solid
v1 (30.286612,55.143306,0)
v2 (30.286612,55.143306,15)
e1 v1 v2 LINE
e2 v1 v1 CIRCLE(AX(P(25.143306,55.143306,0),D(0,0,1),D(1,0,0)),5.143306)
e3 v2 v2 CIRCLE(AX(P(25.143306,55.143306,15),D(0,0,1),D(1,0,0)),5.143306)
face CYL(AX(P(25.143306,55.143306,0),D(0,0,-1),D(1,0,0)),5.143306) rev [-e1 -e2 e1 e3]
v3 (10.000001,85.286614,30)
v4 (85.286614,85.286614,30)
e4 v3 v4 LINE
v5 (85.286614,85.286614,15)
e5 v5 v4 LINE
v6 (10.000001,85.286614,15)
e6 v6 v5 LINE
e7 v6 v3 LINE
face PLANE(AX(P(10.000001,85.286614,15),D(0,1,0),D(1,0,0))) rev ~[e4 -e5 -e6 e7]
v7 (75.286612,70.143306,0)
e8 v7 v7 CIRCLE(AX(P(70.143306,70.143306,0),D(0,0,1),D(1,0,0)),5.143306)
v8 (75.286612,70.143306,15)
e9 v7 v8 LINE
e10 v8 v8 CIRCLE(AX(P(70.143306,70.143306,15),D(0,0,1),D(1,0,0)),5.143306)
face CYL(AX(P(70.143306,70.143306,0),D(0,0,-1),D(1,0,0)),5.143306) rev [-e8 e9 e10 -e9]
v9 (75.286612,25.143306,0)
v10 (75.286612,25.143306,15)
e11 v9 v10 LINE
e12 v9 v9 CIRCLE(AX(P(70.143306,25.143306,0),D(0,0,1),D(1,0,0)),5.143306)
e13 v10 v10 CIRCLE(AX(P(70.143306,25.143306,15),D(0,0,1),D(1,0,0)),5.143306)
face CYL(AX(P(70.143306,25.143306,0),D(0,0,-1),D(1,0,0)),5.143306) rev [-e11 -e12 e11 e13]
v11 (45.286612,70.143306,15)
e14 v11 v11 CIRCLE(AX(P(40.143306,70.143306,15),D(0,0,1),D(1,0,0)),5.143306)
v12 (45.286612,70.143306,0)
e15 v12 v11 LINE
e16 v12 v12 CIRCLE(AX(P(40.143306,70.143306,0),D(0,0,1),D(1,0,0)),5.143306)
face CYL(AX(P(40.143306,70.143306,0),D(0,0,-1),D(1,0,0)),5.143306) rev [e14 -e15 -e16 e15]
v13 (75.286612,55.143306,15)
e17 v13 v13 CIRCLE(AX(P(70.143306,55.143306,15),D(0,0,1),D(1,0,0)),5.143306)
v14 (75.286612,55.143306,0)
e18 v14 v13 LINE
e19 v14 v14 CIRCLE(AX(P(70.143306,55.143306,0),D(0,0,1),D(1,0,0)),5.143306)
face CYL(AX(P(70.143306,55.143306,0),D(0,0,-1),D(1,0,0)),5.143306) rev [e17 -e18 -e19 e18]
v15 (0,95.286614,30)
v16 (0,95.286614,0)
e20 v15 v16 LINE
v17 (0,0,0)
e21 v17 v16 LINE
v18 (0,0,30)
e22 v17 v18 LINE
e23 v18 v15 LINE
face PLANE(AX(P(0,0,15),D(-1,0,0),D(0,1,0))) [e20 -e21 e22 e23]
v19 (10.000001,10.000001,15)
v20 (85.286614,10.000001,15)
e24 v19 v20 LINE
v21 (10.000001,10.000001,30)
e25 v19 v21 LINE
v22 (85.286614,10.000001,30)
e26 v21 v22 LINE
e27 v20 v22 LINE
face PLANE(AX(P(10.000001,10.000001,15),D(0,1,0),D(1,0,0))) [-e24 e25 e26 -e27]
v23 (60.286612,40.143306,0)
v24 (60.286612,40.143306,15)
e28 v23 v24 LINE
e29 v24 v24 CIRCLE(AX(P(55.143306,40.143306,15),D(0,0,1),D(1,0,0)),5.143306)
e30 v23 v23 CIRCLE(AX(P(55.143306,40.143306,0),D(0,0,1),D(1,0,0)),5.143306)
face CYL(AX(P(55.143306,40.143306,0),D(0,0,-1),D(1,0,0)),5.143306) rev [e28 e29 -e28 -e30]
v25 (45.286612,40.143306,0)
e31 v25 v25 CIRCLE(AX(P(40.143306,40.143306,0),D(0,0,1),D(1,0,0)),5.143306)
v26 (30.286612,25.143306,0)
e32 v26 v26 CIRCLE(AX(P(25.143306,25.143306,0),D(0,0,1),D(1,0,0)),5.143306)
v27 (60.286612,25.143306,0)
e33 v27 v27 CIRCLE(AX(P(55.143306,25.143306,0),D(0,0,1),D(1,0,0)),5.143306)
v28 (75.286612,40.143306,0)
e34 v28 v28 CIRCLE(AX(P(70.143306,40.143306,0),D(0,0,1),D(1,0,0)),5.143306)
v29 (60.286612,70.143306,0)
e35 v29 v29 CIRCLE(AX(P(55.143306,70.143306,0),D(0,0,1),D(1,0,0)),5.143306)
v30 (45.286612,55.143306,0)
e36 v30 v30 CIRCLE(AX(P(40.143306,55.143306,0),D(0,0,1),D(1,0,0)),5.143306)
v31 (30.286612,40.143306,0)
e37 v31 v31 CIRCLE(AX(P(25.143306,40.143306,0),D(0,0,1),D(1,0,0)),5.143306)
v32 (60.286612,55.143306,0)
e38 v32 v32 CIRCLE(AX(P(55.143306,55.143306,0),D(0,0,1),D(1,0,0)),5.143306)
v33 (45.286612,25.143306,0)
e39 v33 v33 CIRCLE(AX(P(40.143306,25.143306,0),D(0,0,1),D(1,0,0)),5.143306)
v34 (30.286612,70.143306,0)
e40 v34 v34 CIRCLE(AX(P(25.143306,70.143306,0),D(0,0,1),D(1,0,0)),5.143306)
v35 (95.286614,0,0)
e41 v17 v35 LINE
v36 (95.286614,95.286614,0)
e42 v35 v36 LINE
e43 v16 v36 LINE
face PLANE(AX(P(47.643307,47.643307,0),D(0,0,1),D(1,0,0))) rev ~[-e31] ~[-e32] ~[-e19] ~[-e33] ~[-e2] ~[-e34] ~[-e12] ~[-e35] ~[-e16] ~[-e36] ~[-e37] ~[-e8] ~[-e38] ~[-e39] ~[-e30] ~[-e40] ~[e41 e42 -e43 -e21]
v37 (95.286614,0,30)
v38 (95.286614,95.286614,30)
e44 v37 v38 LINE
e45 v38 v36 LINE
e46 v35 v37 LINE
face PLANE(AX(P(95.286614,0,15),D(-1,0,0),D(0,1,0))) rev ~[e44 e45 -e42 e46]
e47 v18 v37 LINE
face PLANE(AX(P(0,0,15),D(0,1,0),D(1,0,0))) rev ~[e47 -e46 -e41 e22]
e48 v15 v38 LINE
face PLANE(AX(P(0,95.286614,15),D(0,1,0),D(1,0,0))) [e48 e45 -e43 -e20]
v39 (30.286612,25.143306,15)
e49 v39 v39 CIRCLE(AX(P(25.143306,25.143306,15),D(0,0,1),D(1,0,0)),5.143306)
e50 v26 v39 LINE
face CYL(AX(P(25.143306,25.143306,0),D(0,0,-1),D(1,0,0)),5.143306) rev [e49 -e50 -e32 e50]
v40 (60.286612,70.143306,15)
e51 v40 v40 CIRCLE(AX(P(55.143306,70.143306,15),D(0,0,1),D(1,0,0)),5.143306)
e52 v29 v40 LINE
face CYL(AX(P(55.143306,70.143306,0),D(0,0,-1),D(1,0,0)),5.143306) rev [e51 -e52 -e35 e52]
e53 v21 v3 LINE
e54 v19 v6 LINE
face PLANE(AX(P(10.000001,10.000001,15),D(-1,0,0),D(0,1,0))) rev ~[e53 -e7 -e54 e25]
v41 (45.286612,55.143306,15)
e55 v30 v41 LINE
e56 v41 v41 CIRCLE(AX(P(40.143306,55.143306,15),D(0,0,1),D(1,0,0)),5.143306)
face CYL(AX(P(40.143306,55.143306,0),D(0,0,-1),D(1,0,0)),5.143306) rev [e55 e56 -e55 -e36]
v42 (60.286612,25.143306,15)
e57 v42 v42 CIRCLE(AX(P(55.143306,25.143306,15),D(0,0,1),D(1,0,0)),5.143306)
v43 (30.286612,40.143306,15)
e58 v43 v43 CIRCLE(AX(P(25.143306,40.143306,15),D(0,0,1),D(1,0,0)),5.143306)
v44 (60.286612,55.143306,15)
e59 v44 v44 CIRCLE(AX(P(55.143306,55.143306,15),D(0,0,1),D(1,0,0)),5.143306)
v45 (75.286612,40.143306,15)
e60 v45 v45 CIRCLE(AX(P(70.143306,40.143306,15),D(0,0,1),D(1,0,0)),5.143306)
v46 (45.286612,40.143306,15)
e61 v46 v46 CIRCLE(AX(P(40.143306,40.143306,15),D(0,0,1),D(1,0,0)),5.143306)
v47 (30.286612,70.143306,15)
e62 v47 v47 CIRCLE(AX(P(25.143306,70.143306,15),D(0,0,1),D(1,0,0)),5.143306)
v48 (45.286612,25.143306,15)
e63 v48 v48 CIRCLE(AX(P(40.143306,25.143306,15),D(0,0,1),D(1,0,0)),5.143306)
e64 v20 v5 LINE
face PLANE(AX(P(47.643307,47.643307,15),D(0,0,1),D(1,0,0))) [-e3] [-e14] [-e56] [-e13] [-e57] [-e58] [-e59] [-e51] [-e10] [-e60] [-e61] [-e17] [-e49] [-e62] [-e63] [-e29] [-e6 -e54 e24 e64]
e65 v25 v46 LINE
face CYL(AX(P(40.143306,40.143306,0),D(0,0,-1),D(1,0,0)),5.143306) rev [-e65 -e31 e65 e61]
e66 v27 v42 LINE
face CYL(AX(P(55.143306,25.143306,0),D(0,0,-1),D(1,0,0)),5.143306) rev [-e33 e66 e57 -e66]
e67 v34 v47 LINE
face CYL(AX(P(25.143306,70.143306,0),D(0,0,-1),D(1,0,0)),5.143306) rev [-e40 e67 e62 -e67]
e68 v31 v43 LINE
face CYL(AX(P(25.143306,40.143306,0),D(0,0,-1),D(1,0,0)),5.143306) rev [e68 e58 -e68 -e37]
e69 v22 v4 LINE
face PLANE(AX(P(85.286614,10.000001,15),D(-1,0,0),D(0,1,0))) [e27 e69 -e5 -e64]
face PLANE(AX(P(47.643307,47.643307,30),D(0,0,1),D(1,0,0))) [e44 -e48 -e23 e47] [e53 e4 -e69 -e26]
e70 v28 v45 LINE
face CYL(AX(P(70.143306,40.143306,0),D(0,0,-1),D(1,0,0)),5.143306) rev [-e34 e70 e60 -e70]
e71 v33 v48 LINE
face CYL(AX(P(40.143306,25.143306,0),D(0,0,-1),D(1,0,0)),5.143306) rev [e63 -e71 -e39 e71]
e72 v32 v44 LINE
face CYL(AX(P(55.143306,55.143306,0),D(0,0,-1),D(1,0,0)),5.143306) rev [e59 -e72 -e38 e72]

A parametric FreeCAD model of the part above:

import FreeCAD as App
import Part
import Sketcher

V = App.Vector


def add_polygon(sketch, points):
    """Adds a closed chain of lines whose ends are joined by coincident constraints."""
    first, n = sketch.GeometryCount, len(points)
    for a, b in zip(points, points[1:] + points[:1]):
        sketch.addGeometry(Part.LineSegment(App.Vector(*a, 0), App.Vector(*b, 0)), False)
    for i in range(n):
        sketch.addConstraint(Sketcher.Constraint("Coincident", first + i, 2, first + (i + 1) % n, 1))

doc = App.newDocument("Part")
params = doc.addObject("Spreadsheet::Sheet", "Params")
for row, (alias, value) in enumerate([
    ("pad1_length", "15 mm"),
    ("pad2_length", "15 mm"),
], start=1):
    params.set(f"A{row}", alias)
    params.set(f"B{row}", "=" + value)
    params.setAlias(f"B{row}", alias)

body = doc.addObject("PartDesign::Body", "Body")

sketch1 = doc.addObject("Sketcher::SketchObject", "Sketch")
body.addObject(sketch1)
sketch1.AttachmentSupport = (doc.XY_Plane, [""])
sketch1.MapMode = "FlatFace"
add_polygon(sketch1, [(0, 95), (0, 0), (95, 0), (95, 95)])
sketch1.addGeometry(Part.Circle(V(25, 25, 0), V(0, 0, 1), 5), False)
sketch1.addGeometry(Part.Circle(V(40, 25, 0), V(0, 0, 1), 5), False)
sketch1.addGeometry(Part.Circle(V(25, 40, 0), V(0, 0, 1), 5), False)
sketch1.addGeometry(Part.Circle(V(40, 40, 0), V(0, 0, 1), 5), False)
sketch1.addGeometry(Part.Circle(V(55, 25, 0), V(0, 0, 1), 5), False)
sketch1.addGeometry(Part.Circle(V(70, 25, 0), V(0, 0, 1), 5), False)
sketch1.addGeometry(Part.Circle(V(55, 40, 0), V(0, 0, 1), 5), False)
sketch1.addGeometry(Part.Circle(V(70, 40, 0), V(0, 0, 1), 5), False)
sketch1.addGeometry(Part.Circle(V(25, 55, 0), V(0, 0, 1), 5), False)
sketch1.addGeometry(Part.Circle(V(40, 55, 0), V(0, 0, 1), 5), False)
sketch1.addGeometry(Part.Circle(V(25, 70, 0), V(0, 0, 1), 5), False)
sketch1.addGeometry(Part.Circle(V(40, 70, 0), V(0, 0, 1), 5), False)
sketch1.addGeometry(Part.Circle(V(55, 55, 0), V(0, 0, 1), 5), False)
sketch1.addGeometry(Part.Circle(V(70, 55, 0), V(0, 0, 1), 5), False)
sketch1.addGeometry(Part.Circle(V(55, 70, 0), V(0, 0, 1), 5), False)
sketch1.addGeometry(Part.Circle(V(70, 70, 0), V(0, 0, 1), 5), False)
sketch1.addConstraint(Sketcher.Constraint("Vertical", 0))
sketch1.addConstraint(Sketcher.Constraint("Horizontal", 1))
sketch1.addConstraint(Sketcher.Constraint("Vertical", 2))
sketch1.addConstraint(Sketcher.Constraint("Horizontal", 3))
sketch1.addConstraint(Sketcher.Constraint("Coincident", 0, 2, -1, 1))
sketch1.addConstraint(Sketcher.Constraint("Equal", 4, 5))
sketch1.addConstraint(Sketcher.Constraint("Equal", 5, 6))
sketch1.addConstraint(Sketcher.Constraint("Equal", 6, 7))
sketch1.addConstraint(Sketcher.Constraint("Equal", 7, 8))
sketch1.addConstraint(Sketcher.Constraint("Equal", 8, 9))
sketch1.addConstraint(Sketcher.Constraint("Equal", 9, 10))
sketch1.addConstraint(Sketcher.Constraint("Equal", 10, 11))
sketch1.addConstraint(Sketcher.Constraint("Equal", 11, 12))
sketch1.addConstraint(Sketcher.Constraint("Equal", 12, 13))
sketch1.addConstraint(Sketcher.Constraint("Equal", 13, 14))
sketch1.addConstraint(Sketcher.Constraint("Equal", 14, 15))
sketch1.addConstraint(Sketcher.Constraint("Equal", 15, 16))
sketch1.addConstraint(Sketcher.Constraint("Equal", 16, 17))
sketch1.addConstraint(Sketcher.Constraint("Equal", 17, 18))
sketch1.addConstraint(Sketcher.Constraint("Equal", 18, 19))
sketch1.addConstraint(Sketcher.Constraint("Horizontal", 4, 3, 5, 3))
sketch1.addConstraint(Sketcher.Constraint("Horizontal", 6, 3, 7, 3))
sketch1.addConstraint(Sketcher.Constraint("Horizontal", 5, 3, 8, 3))
sketch1.addConstraint(Sketcher.Constraint("Horizontal", 8, 3, 9, 3))
sketch1.addConstraint(Sketcher.Constraint("Horizontal", 7, 3, 10, 3))
sketch1.addConstraint(Sketcher.Constraint("Horizontal", 10, 3, 11, 3))
sketch1.addConstraint(Sketcher.Constraint("Horizontal", 12, 3, 13, 3))
sketch1.addConstraint(Sketcher.Constraint("Horizontal", 14, 3, 15, 3))
sketch1.addConstraint(Sketcher.Constraint("Horizontal", 13, 3, 16, 3))
sketch1.addConstraint(Sketcher.Constraint("Horizontal", 16, 3, 17, 3))
sketch1.addConstraint(Sketcher.Constraint("Horizontal", 15, 3, 18, 3))
sketch1.addConstraint(Sketcher.Constraint("Horizontal", 18, 3, 19, 3))
sketch1.addConstraint(Sketcher.Constraint("Vertical", 4, 3, 6, 3))
sketch1.addConstraint(Sketcher.Constraint("Vertical", 5, 3, 7, 3))
sketch1.addConstraint(Sketcher.Constraint("Vertical", 8, 3, 10, 3))
sketch1.addConstraint(Sketcher.Constraint("Vertical", 9, 3, 11, 3))
sketch1.addConstraint(Sketcher.Constraint("Vertical", 6, 3, 12, 3))
sketch1.addConstraint(Sketcher.Constraint("Vertical", 7, 3, 13, 3))
sketch1.addConstraint(Sketcher.Constraint("Vertical", 12, 3, 14, 3))
sketch1.addConstraint(Sketcher.Constraint("Vertical", 13, 3, 15, 3))
sketch1.addConstraint(Sketcher.Constraint("Vertical", 10, 3, 16, 3))
sketch1.addConstraint(Sketcher.Constraint("Vertical", 11, 3, 17, 3))
sketch1.addConstraint(Sketcher.Constraint("Vertical", 16, 3, 18, 3))
sketch1.addConstraint(Sketcher.Constraint("Vertical", 17, 3, 19, 3))
sketch1.addConstraint(Sketcher.Constraint("Equal", 3, 0))
sketch1.addConstraint(Sketcher.Constraint("DistanceX", 4, 3, 5, 3, 15.0))
sketch1.addConstraint(Sketcher.Constraint("DistanceY", 4, 3, 6, 3, 15.0))
sketch1.addConstraint(Sketcher.Constraint("DistanceX", 5, 3, 8, 3, 15.0))
sketch1.addConstraint(Sketcher.Constraint("DistanceX", 8, 3, 9, 3, 15.0))
sketch1.addConstraint(Sketcher.Constraint("DistanceY", 6, 3, 12, 3, 15.0))
sketch1.addConstraint(Sketcher.Constraint("DistanceY", 12, 3, 14, 3, 15.0))
sketch1.addConstraint(Sketcher.Constraint("Diameter", 4, 10.286612))
sketch1.addConstraint(Sketcher.Constraint("DistanceX", 1, 1, 1, 2, 95.286613))
sketch1.addConstraint(Sketcher.Constraint("DistanceX", -1, 1, 4, 3, 25.143306))
sketch1.addConstraint(Sketcher.Constraint("DistanceY", -1, 1, 4, 3, 25.143306))
pad1 = doc.addObject("PartDesign::Pad", "Pad")
body.addObject(pad1)
pad1.Profile = sketch1
pad1.setExpression("Length", "Params.pad1_length")

sketch2 = doc.addObject("Sketcher::SketchObject", "Sketch001")
body.addObject(sketch2)
sketch2.AttachmentSupport = (doc.XY_Plane, [""])
sketch2.MapMode = "FlatFace"
sketch2.AttachmentOffset = App.Placement(V(0, 0, 15), App.Rotation())
add_polygon(sketch2, [(0, 95), (0, 0), (95, 0), (95, 95)])
add_polygon(sketch2, [(85, 10), (10, 10), (10, 85), (85, 85)])
sketch2.addConstraint(Sketcher.Constraint("Vertical", 0))
sketch2.addConstraint(Sketcher.Constraint("Horizontal", 1))
sketch2.addConstraint(Sketcher.Constraint("Vertical", 2))
sketch2.addConstraint(Sketcher.Constraint("Horizontal", 3))
sketch2.addConstraint(Sketcher.Constraint("Horizontal", 4))
sketch2.addConstraint(Sketcher.Constraint("Vertical", 5))
sketch2.addConstraint(Sketcher.Constraint("Horizontal", 6))
sketch2.addConstraint(Sketcher.Constraint("Vertical", 7))
sketch2.addConstraint(Sketcher.Constraint("Coincident", 0, 2, -1, 1))
sketch2.addConstraint(Sketcher.Constraint("Equal", 3, 0))
sketch2.addConstraint(Sketcher.Constraint("Equal", 6, 5))
sketch2.addConstraint(Sketcher.Constraint("DistanceX", -1, 1, 4, 2, 10.000001))
sketch2.addConstraint(Sketcher.Constraint("DistanceY", -1, 1, 4, 2, 10.000001))
sketch2.addConstraint(Sketcher.Constraint("DistanceY", 5, 2, 3, 2, 10.0))
sketch2.addConstraint(Sketcher.Constraint("DistanceX", 1, 1, 1, 2, 95.286613))
pad2 = doc.addObject("PartDesign::Pad", "Pad001")
body.addObject(pad2)
pad2.Profile = sketch2
pad2.setExpression("Length", "Params.pad2_length")

doc.recompute()
